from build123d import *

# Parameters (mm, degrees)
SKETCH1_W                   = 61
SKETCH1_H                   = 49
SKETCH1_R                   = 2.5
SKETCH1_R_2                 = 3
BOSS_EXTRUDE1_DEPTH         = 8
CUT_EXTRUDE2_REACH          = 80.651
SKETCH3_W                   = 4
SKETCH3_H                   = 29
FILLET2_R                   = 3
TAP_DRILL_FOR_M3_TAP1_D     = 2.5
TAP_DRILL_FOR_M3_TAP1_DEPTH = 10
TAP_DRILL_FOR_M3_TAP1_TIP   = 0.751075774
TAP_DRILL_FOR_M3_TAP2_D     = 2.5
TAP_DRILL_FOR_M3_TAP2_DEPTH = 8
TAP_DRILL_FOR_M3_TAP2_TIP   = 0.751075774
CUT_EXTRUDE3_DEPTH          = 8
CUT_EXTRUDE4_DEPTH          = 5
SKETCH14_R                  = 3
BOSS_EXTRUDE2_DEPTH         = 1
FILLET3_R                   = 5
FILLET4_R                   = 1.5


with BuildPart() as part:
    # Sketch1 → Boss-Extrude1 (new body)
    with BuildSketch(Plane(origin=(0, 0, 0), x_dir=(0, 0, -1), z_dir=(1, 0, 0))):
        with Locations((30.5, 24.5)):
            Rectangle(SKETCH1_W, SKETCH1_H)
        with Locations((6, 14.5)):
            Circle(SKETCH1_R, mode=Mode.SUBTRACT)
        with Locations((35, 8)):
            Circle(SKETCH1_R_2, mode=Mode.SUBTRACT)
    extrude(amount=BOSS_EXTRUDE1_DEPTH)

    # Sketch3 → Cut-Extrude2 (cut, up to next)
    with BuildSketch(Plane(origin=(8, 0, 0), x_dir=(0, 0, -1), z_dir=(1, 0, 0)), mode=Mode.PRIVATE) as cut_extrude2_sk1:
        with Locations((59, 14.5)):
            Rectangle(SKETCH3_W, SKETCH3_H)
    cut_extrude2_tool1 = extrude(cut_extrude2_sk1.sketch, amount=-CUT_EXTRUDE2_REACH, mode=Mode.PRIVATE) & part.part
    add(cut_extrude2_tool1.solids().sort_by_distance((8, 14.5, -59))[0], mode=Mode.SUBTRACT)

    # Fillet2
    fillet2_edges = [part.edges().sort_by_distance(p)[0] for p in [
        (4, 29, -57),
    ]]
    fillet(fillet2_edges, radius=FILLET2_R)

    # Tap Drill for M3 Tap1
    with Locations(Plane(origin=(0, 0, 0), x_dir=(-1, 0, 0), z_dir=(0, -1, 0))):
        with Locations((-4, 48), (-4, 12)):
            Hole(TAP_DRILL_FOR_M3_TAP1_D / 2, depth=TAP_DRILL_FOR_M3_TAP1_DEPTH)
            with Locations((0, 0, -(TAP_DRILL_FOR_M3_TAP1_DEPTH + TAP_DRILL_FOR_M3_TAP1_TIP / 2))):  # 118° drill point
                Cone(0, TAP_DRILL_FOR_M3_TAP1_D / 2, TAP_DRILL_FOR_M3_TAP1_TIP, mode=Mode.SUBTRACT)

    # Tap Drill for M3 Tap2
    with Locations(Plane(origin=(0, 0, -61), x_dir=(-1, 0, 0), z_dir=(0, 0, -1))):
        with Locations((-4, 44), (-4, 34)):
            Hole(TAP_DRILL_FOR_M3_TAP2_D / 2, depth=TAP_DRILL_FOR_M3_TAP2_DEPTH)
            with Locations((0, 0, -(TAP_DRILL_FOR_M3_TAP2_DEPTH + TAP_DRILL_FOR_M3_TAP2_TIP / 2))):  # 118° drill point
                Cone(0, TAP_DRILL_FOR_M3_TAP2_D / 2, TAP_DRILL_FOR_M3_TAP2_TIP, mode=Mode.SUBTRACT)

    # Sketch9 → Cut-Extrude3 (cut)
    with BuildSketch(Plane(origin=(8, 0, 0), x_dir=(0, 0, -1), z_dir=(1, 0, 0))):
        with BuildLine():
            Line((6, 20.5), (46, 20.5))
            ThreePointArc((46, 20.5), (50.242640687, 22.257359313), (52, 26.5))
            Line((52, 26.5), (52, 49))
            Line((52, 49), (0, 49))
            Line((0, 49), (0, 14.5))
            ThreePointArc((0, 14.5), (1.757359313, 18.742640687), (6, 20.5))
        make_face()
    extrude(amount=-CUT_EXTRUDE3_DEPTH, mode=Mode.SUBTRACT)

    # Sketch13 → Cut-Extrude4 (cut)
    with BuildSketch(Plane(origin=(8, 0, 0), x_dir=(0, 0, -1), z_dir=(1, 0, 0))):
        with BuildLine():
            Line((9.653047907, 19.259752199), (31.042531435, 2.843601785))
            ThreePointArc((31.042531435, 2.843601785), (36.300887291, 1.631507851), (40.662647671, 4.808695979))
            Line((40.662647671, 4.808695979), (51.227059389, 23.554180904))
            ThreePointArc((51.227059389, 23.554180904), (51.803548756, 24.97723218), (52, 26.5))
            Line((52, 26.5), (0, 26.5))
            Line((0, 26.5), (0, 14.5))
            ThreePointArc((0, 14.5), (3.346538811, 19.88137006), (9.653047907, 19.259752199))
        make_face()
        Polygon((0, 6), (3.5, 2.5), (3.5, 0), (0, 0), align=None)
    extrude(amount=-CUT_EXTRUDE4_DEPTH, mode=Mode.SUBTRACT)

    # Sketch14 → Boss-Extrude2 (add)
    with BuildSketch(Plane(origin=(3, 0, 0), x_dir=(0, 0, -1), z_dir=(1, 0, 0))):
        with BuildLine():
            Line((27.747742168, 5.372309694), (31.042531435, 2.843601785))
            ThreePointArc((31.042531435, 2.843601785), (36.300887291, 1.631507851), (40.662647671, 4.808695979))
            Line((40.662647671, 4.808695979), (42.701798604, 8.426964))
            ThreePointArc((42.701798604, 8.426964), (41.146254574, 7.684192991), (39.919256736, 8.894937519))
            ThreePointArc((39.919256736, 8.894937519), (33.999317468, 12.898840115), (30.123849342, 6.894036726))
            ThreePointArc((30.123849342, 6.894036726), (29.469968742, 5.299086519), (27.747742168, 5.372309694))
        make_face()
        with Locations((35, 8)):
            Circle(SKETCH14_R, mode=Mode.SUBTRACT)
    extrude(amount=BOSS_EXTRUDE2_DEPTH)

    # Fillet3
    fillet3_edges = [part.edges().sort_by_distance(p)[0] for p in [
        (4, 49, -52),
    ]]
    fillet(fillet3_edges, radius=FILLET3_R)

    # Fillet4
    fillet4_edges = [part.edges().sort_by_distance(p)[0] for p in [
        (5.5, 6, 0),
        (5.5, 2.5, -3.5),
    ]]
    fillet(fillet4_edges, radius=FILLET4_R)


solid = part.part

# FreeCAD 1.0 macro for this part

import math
import FreeCAD as App
import Part
import Sketcher
from FreeCAD import Vector
Q = App.Units.Quantity


def edges_at(feature, points):
    """Names of the edges that pass closest to the given points."""
    edges = feature.Shape.Edges
    near = lambda p: min(range(len(edges)), key=lambda i: edges[i].distToShape(Part.Vertex(*p))[0])
    return sorted({f"Edge{near(p) + 1}" for p in points})

doc = App.newDocument("Part")
body = doc.addObject("PartDesign::Body", "Body")

sketch1 = body.newObject("Sketcher::SketchObject", "Sketch")
sketch1.AttachmentSupport = (doc.getObject("YZ_Plane"), [""])
sketch1.MapMode = "FlatFace"
sketch1.addGeometry(Part.LineSegment(Vector(49, 0, 0), Vector(0, 0, 0)), False)
sketch1.addGeometry(Part.LineSegment(Vector(0, 0, 0), Vector(0, -61, 0)), False)
sketch1.addGeometry(Part.LineSegment(Vector(0, -61, 0), Vector(49, -61, 0)), False)
sketch1.addGeometry(Part.LineSegment(Vector(49, -61, 0), Vector(49, 0, 0)), False)
sketch1.addGeometry(Part.Circle(Vector(8, -35, 0), Vector(0, 0, 1), 3), False)
sketch1.addGeometry(Part.Circle(Vector(14.5, -6, 0), Vector(0, 0, 1), 2.5), False)
sketch1.addConstraint(Sketcher.Constraint("Coincident", 0, 2, 1, 1))
sketch1.addConstraint(Sketcher.Constraint("Coincident", 1, 2, 2, 1))
sketch1.addConstraint(Sketcher.Constraint("Coincident", 2, 2, 3, 1))
sketch1.addConstraint(Sketcher.Constraint("Coincident", 3, 2, 0, 1))
sketch1.addConstraint(Sketcher.Constraint("Horizontal", 0))
sketch1.addConstraint(Sketcher.Constraint("Vertical", 1))
sketch1.addConstraint(Sketcher.Constraint("Horizontal", 2))
sketch1.addConstraint(Sketcher.Constraint("Vertical", 3))
sketch1.addConstraint(Sketcher.Constraint("Coincident", 0, 2, -1, 1))
sketch1.addConstraint(Sketcher.Constraint("Diameter", 4, Q("6 mm")))
sketch1.addConstraint(Sketcher.Constraint("Diameter", 5, Q("5 mm")))
sketch1.addConstraint(Sketcher.Constraint("DistanceX", 0, 2, 0, 1, Q("49 mm")))
sketch1.addConstraint(Sketcher.Constraint("DistanceY", 1, 2, 1, 1, Q("61 mm")))
sketch1.addConstraint(Sketcher.Constraint("DistanceX", -1, 1, 4, 3, Q("8 mm")))
sketch1.addConstraint(Sketcher.Constraint("DistanceY", 4, 3, -1, 1, Q("35 mm")))
sketch1.addConstraint(Sketcher.Constraint("DistanceY", 5, 3, -1, 1, Q("6 mm")))
sketch1.addConstraint(Sketcher.Constraint("DistanceX", -1, 1, 5, 3, Q("14.5 mm")))
pad1 = body.newObject("PartDesign::Pad", "Pad")
pad1.Profile = sketch1
pad1.Length = 8

sketch2 = body.newObject("Sketcher::SketchObject", "Sketch001")
sketch2.AttachmentSupport = (doc.getObject("YZ_Plane"), [""])
sketch2.MapMode = "FlatFace"
sketch2.AttachmentOffset = App.Placement(Vector(0, 0, 8), App.Rotation())
sketch2.addGeometry(Part.LineSegment(Vector(29, -57, 0), Vector(0, -57, 0)), False)
sketch2.addGeometry(Part.LineSegment(Vector(0, -57, 0), Vector(0, -61, 0)), False)
sketch2.addGeometry(Part.LineSegment(Vector(0, -61, 0), Vector(29, -61, 0)), False)
sketch2.addGeometry(Part.LineSegment(Vector(29, -61, 0), Vector(29, -57, 0)), False)
sketch2.addConstraint(Sketcher.Constraint("Coincident", 0, 2, 1, 1))
sketch2.addConstraint(Sketcher.Constraint("Coincident", 1, 2, 2, 1))
sketch2.addConstraint(Sketcher.Constraint("Coincident", 2, 2, 3, 1))
sketch2.addConstraint(Sketcher.Constraint("Coincident", 3, 2, 0, 1))
sketch2.addConstraint(Sketcher.Constraint("Horizontal", 0))
sketch2.addConstraint(Sketcher.Constraint("Vertical", 1))
sketch2.addConstraint(Sketcher.Constraint("Horizontal", 2))
sketch2.addConstraint(Sketcher.Constraint("Vertical", 3))
sketch2.addConstraint(Sketcher.Constraint("PointOnObject", 0, 2, -2))
sketch2.addConstraint(Sketcher.Constraint("DistanceX", 0, 2, 0, 1, Q("29 mm")))
sketch2.addConstraint(Sketcher.Constraint("DistanceY", 1, 2, 1, 1, Q("4 mm")))
sketch2.addConstraint(Sketcher.Constraint("DistanceY", 0, 2, -1, 1, Q("57 mm")))
pocket1 = body.newObject("PartDesign::Pocket", "Pocket")
pocket1.Profile = sketch2
pocket1.Type = "UpToFirst"
doc.recompute()

fillet = body.newObject("PartDesign::Fillet", "Fillet")
fillet.Base = (pocket1, edges_at(pocket1, [(4, 29, -57)]))
fillet.Radius = 3

sketch3 = body.newObject("Sketcher::SketchObject", "Sketch002")
sketch3.AttachmentSupport = (doc.getObject("XZ_Plane"), [""])
sketch3.MapMode = "FlatFace"
sketch3.addGeometry(Part.Circle(Vector(4, -48, 0), Vector(0, 0, 1), 1.25), False)
sketch3.addGeometry(Part.Circle(Vector(4, -12, 0), Vector(0, 0, 1), 1.25), False)
sketch3.addConstraint(Sketcher.Constraint("Equal", 0, 1))
sketch3.addConstraint(Sketcher.Constraint("Vertical", 0, 3, 1, 3))
sketch3.addConstraint(Sketcher.Constraint("Diameter", 0, Q("2.5 mm")))
sketch3.addConstraint(Sketcher.Constraint("DistanceX", -1, 1, 0, 3, Q("4 mm")))
sketch3.addConstraint(Sketcher.Constraint("DistanceY", 0, 3, -1, 1, Q("48 mm")))
sketch3.addConstraint(Sketcher.Constraint("DistanceY", 1, 3, -1, 1, Q("12 mm")))
doc.recompute()
hole = body.newObject("PartDesign::Hole", "Hole")
hole.Profile = sketch3
hole.ThreadType = "None"
hole.Diameter = 2.5
hole.DepthType = "Dimension"
hole.Depth = 10
hole.DrillPoint = "Angled"
hole.DrillPointAngle = 118

sketch4 = body.newObject("Sketcher::SketchObject", "Sketch003")
sketch4.AttachmentSupport = (doc.getObject("XY_Plane"), [""])
sketch4.MapMode = "FlatFace"
sketch4.AttachmentOffset = App.Placement(Vector(0, 0, -61), App.Rotation())
sketch4.addGeometry(Part.Circle(Vector(4, 44, 0), Vector(0, 0, 1), 1.25), False)
sketch4.addGeometry(Part.Circle(Vector(4, 34, 0), Vector(0, 0, 1), 1.25), False)
sketch4.addConstraint(Sketcher.Constraint("Equal", 0, 1))
sketch4.addConstraint(Sketcher.Constraint("Vertical", 0, 3, 1, 3))
sketch4.addConstraint(Sketcher.Constraint("Diameter", 0, Q("2.5 mm")))
sketch4.addConstraint(Sketcher.Constraint("DistanceX", -1, 1, 0, 3, Q("4 mm")))
sketch4.addConstraint(Sketcher.Constraint("DistanceY", -1, 1, 0, 3, Q("44 mm")))
sketch4.addConstraint(Sketcher.Constraint("DistanceY", -1, 1, 1, 3, Q("34 mm")))
doc.recompute()
hole2 = body.newObject("PartDesign::Hole", "Hole001")
hole2.Profile = sketch4
hole2.ThreadType = "None"
hole2.Diameter = 2.5
hole2.DepthType = "Dimension"
hole2.Depth = 8
hole2.DrillPoint = "Angled"
hole2.DrillPointAngle = 118
hole2.Reversed = True

sketch5 = body.newObject("Sketcher::SketchObject", "Sketch004")
sketch5.AttachmentSupport = (doc.getObject("YZ_Plane"), [""])
sketch5.MapMode = "FlatFace"
sketch5.AttachmentOffset = App.Placement(Vector(0, 0, 8), App.Rotation())
sketch5.addGeometry(Part.LineSegment(Vector(20.5, -6, 0), Vector(20.5, -46, 0)), False)
sketch5.addGeometry(Part.ArcOfCircle(Part.Circle(Vector(26.5, -46, 0), Vector(0, 0, 1), 6), math.radians(180), math.radians(270)), False)
sketch5.addGeometry(Part.LineSegment(Vector(26.5, -52, 0), Vector(49, -52, 0)), False)
sketch5.addGeometry(Part.LineSegment(Vector(49, -52, 0), Vector(49, 0, 0)), False)
sketch5.addGeometry(Part.LineSegment(Vector(49, 0, 0), Vector(14.5, 0, 0)), False)
sketch5.addGeometry(Part.ArcOfCircle(Part.Circle(Vector(14.5, -6, 0), Vector(0, 0, 1), 6), math.radians(0), math.radians(90)), False)
sketch5.addConstraint(Sketcher.Constraint("Tangent", 0, 2, 1, 1))
sketch5.addConstraint(Sketcher.Constraint("Tangent", 1, 2, 2, 1))
sketch5.addConstraint(Sketcher.Constraint("Coincident", 2, 2, 3, 1))
sketch5.addConstraint(Sketcher.Constraint("Coincident", 3, 2, 4, 1))
sketch5.addConstraint(Sketcher.Constraint("Tangent", 4, 2, 5, 2))
sketch5.addConstraint(Sketcher.Constraint("Tangent", 5, 1, 0, 1))
sketch5.addConstraint(Sketcher.Constraint("Vertical", 0))
sketch5.addConstraint(Sketcher.Constraint("Horizontal", 2))
sketch5.addConstraint(Sketcher.Constraint("Vertical", 3))
sketch5.addConstraint(Sketcher.Constraint("Horizontal", 4))
sketch5.addConstraint(Sketcher.Constraint("Equal", 1, 5))
sketch5.addConstraint(Sketcher.Constraint("PointOnObject", 3, 2, -1))
sketch5.addConstraint(Sketcher.Constraint("Radius", 1, Q("6 mm")))
sketch5.addConstraint(Sketcher.Constraint("DistanceY", 0, 2, 0, 1, Q("40 mm")))
sketch5.addConstraint(Sketcher.Constraint("DistanceX", 2, 1, 2, 2, Q("22.5 mm")))
sketch5.addConstraint(Sketcher.Constraint("DistanceX", -1, 1, 2, 2, Q("49 mm")))
pocket2 = body.newObject("PartDesign::Pocket", "Pocket001")
pocket2.Profile = sketch5
pocket2.Length = 8

sketch6 = body.newObject("Sketcher::SketchObject", "Sketch005")
sketch6.AttachmentSupport = (doc.getObject("YZ_Plane"), [""])
sketch6.MapMode = "FlatFace"
sketch6.AttachmentOffset = App.Placement(Vector(0, 0, 8), App.Rotation())
sketch6.addGeometry(Part.LineSegment(Vector(19.259752, -9.653048, 0), Vector(2.843602, -31.042531, 0)), False)
sketch6.addGeometry(Part.ArcOfCircle(Part.Circle(Vector(8, -35, 0), Vector(0, 0, 1), 6.5), math.radians(142.49423), math.radians(240.595653)), False)
sketch6.addGeometry(Part.LineSegment(Vector(4.808696, -40.662648, 0), Vector(23.554181, -51.227059, 0)), False)
sketch6.addGeometry(Part.ArcOfCircle(Part.Circle(Vector(26.5, -46, 0), Vector(0, 0, 1), 6), math.radians(-119.404347), math.radians(-90)), False)
sketch6.addGeometry(Part.LineSegment(Vector(26.5, -52, 0), Vector(26.5, 0, 0)), False)
sketch6.addGeometry(Part.LineSegment(Vector(26.5, 0, 0), Vector(14.5, 0, 0)), False)
sketch6.addGeometry(Part.ArcOfCircle(Part.Circle(Vector(14.5, -6, 0), Vector(0, 0, 1), 6), math.radians(-37.50577), math.radians(90)), False)
sketch6.addGeometry(Part.LineSegment(Vector(2.5, -3.5, 0), Vector(6, 0, 0)), False)
sketch6.addGeometry(Part.LineSegment(Vector(6, 0, 0), Vector(0, 0, 0)), False)
sketch6.addGeometry(Part.LineSegment(Vector(0, 0, 0), Vector(0, -3.5, 0)), False)
sketch6.addGeometry(Part.LineSegment(Vector(0, -3.5, 0), Vector(2.5, -3.5, 0)), False)
sketch6.addConstraint(Sketcher.Constraint("Tangent", 0, 2, 1, 1))
sketch6.addConstraint(Sketcher.Constraint("Tangent", 1, 2, 2, 1))
sketch6.addConstraint(Sketcher.Constraint("Tangent", 2, 2, 3, 1))
sketch6.addConstraint(Sketcher.Constraint("Coincident", 3, 2, 4, 1))
sketch6.addConstraint(Sketcher.Constraint("Coincident", 4, 2, 5, 1))
sketch6.addConstraint(Sketcher.Constraint("Tangent", 5, 2, 6, 2))
sketch6.addConstraint(Sketcher.Constraint("Tangent", 6, 1, 0, 1))
sketch6.addConstraint(Sketcher.Constraint("Coincident", 7, 2, 8, 1))
sketch6.addConstraint(Sketcher.Constraint("Coincident", 8, 2, 9, 1))
sketch6.addConstraint(Sketcher.Constraint("Coincident", 9, 2, 10, 1))
sketch6.addConstraint(Sketcher.Constraint("Coincident", 10, 2, 7, 1))
sketch6.addConstraint(Sketcher.Constraint("Vertical", 4))
sketch6.addConstraint(Sketcher.Constraint("Horizontal", 5))
sketch6.addConstraint(Sketcher.Constraint("Horizontal", 8))
sketch6.addConstraint(Sketcher.Constraint("Vertical", 9))
sketch6.addConstraint(Sketcher.Constraint("Horizontal", 10))
sketch6.addConstraint(Sketcher.Constraint("Coincident", 8, 2, -1, 1))
sketch6.addConstraint(Sketcher.Constraint("Equal", 3, 6))
sketch6.addConstraint(Sketcher.Constraint("PointOnObject", 4, 2, -1))
sketch6.addConstraint(Sketcher.Constraint("Radius", 3, Q("6 mm")))
sketch6.addConstraint(Sketcher.Constraint("Radius", 1, Q("6.5 mm")))
sketch6.addConstraint(Sketcher.Constraint("DistanceX", 5, 2, 5, 1, Q("12 mm")))
sketch6.addConstraint(Sketcher.Constraint("DistanceX", 8, 2, 8, 1, Q("6 mm")))
sketch6.addConstraint(Sketcher.Constraint("DistanceY", 4, 1, 4, 2, Q("52 mm")))
sketch6.addConstraint(Sketcher.Constraint("Angle", 7, Q("45 deg")))
sketch6.addConstraint(Sketcher.Constraint("DistanceX", 10, 1, 10, 2, Q("2.5 mm")))
sketch6.addConstraint(Sketcher.Constraint("DistanceX", -1, 1, 1, 3, Q("8 mm")))
sketch6.addConstraint(Sketcher.Constraint("DistanceY", 1, 3, -1, 1, Q("35 mm")))
sketch6.addConstraint(Sketcher.Constraint("DistanceX", 6, 3, 3, 3, Q("12 mm")))
sketch6.addConstraint(Sketcher.Constraint("DistanceX", 10, 2, 6, 3, Q("12 mm")))
pocket3 = body.newObject("PartDesign::Pocket", "Pocket002")
pocket3.Profile = sketch6
pocket3.Length = 5

sketch7 = body.newObject("Sketcher::SketchObject", "Sketch006")
sketch7.AttachmentSupport = (doc.getObject("YZ_Plane"), [""])
sketch7.MapMode = "FlatFace"
sketch7.AttachmentOffset = App.Placement(Vector(0, 0, 3), App.Rotation())
sketch7.addGeometry(Part.LineSegment(Vector(5.37231, -27.747742, 0), Vector(2.843602, -31.042531, 0)), False)
sketch7.addGeometry(Part.ArcOfCircle(Part.Circle(Vector(8, -35, 0), Vector(0, 0, 1), 6.5), math.radians(142.49423), math.radians(240.595653)), False)
sketch7.addGeometry(Part.LineSegment(Vector(4.808696, -40.662648, 0), Vector(8.426964, -42.701799, 0)), False)
sketch7.addGeometry(Part.ArcOfCircle(Part.Circle(Vector(9.163419, -41.395034, 0), Vector(0, 0, 1), 1.5), math.radians(100.31079), math.radians(240.595653)), False)
sketch7.addGeometry(Part.ArcOfCircle(Part.Circle(Vector(8, -35, 0), Vector(0, 0, 1), 5), math.radians(-79.68921), math.radians(102.779093)), False)
sketch7.addGeometry(Part.ArcOfCircle(Part.Circle(Vector(6.562248, -28.661004, 0), Vector(0, 0, 1), 1.5), math.radians(142.49423), math.radians(282.779093)), False)
sketch7.addGeometry(Part.Circle(Vector(8, -35, 0), Vector(0, 0, 1), 3), False)
sketch7.addConstraint(Sketcher.Constraint("Tangent", 0, 2, 1, 1))
sketch7.addConstraint(Sketcher.Constraint("Tangent", 1, 2, 2, 1))
sketch7.addConstraint(Sketcher.Constraint("Tangent", 2, 2, 3, 2))
sketch7.addConstraint(Sketcher.Constraint("Tangent", 3, 1, 4, 1))
sketch7.addConstraint(Sketcher.Constraint("Tangent", 4, 2, 5, 2))
sketch7.addConstraint(Sketcher.Constraint("Tangent", 5, 1, 0, 1))
sketch7.addConstraint(Sketcher.Constraint("Coincident", 4, 3, 1, 3))
sketch7.addConstraint(Sketcher.Constraint("Coincident", 6, 3, 1, 3))
sketch7.addConstraint(Sketcher.Constraint("Equal", 3, 5))
sketch7.addConstraint(Sketcher.Constraint("Diameter", 6, Q("6 mm")))
sketch7.addConstraint(Sketcher.Constraint("Radius", 4, Q("5 mm")))
sketch7.addConstraint(Sketcher.Constraint("Radius", 1, Q("6.5 mm")))
sketch7.addConstraint(Sketcher.Constraint("Radius", 3, Q("1.5 mm")))
sketch7.addConstraint(Sketcher.Constraint("DistanceX", -1, 1, 1, 3, Q("8 mm")))
sketch7.addConstraint(Sketcher.Constraint("DistanceY", 1, 3, -1, 1, Q("35 mm")))
sketch7.addConstraint(Sketcher.Constraint("DistanceX", -1, 1, 0, 2, Q("2.843602 mm")))
sketch7.addConstraint(Sketcher.Constraint("DistanceY", 2, 2, -1, 1, Q("42.701799 mm")))
pad2 = body.newObject("PartDesign::Pad", "Pad001")
pad2.Profile = sketch7
pad2.Length = 1
doc.recompute()

fillet2 = body.newObject("PartDesign::Fillet", "Fillet001")
fillet2.Base = (pad2, edges_at(pad2, [(4, 49, -52)]))
fillet2.Radius = 5
doc.recompute()

fillet3 = body.newObject("PartDesign::Fillet", "Fillet002")
fillet3.Base = (fillet2, edges_at(fillet2, [(5.5, 6, 0), (5.5, 2.5, -3.5)]))
fillet3.Radius = 1.5

doc.recompute()
